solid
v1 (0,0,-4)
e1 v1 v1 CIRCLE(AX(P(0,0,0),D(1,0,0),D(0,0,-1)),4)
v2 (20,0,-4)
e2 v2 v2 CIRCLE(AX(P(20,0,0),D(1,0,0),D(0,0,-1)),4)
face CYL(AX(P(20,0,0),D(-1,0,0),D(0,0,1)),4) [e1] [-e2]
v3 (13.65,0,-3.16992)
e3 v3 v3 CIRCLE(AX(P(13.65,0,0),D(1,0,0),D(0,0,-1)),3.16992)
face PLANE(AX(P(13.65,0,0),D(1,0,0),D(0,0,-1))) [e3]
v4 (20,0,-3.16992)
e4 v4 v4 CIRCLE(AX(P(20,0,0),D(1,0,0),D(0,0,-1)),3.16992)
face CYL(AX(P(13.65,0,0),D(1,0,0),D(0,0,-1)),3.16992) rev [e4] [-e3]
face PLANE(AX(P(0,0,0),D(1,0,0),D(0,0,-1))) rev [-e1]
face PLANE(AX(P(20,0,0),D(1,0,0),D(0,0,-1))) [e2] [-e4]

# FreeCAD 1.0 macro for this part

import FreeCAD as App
import Part
import Sketcher

V = App.Vector
Q = App.Units.Quantity

doc = App.newDocument("Part")
params = doc.addObject("Spreadsheet::Sheet", "Params")
for row, (alias, value) in enumerate([
    ("sketch1_diameter", "8 mm"),
    ("pad1_length", "20 mm"),
    ("pocket1_length", "6.35 mm"),
], start=1):
    params.set(f"A{row}", alias)
    params.set(f"B{row}", "=" + value)
    params.setAlias(f"B{row}", alias)

body = doc.addObject("PartDesign::Body", "Body")

# Sketch on YZ plane
sketch1 = body.newObject("Sketcher::SketchObject", "Sketch")
sketch1.AttachmentSupport = (doc.getObject("YZ_Plane"), [""])
sketch1.MapMode = "FlatFace"
sketch1.addGeometry(Part.Circle(V(0, 0, 0), V(0, 0, 1), 4), False)
sketch1.addConstraint([
    Sketcher.Constraint("Coincident", 0, 3, -1, 1),
    Sketcher.Constraint("Diameter", 0, Q("8 mm")),
])
sketch1.setExpression("Constraints[1]", "Params.sketch1_diameter")
pad1 = body.newObject("PartDesign::Pad", "Pad")
pad1.Profile = sketch1
pad1.setExpression("Length", "Params.pad1_length")

# Sketch on YZ plane
sketch2 = body.newObject("Sketcher::SketchObject", "Sketch001")
sketch2.AttachmentSupport = (doc.getObject("YZ_Plane"), [""])
sketch2.MapMode = "FlatFace"
sketch2.AttachmentOffset = App.Placement(V(0, 0, 20), App.Rotation())
sketch2.addGeometry(Part.Circle(V(0, 0, 0), V(0, 0, 1), 3.16992), False)
sketch2.addConstraint([
    Sketcher.Constraint("Coincident", 0, 3, -1, 1),
    Sketcher.Constraint("Diameter", 0, Q("6.33984 mm")),
])
pocket1 = body.newObject("PartDesign::Pocket", "Pocket")
pocket1.Profile = sketch2
pocket1.setExpression("Length", "Params.pocket1_length")

doc.recompute()
